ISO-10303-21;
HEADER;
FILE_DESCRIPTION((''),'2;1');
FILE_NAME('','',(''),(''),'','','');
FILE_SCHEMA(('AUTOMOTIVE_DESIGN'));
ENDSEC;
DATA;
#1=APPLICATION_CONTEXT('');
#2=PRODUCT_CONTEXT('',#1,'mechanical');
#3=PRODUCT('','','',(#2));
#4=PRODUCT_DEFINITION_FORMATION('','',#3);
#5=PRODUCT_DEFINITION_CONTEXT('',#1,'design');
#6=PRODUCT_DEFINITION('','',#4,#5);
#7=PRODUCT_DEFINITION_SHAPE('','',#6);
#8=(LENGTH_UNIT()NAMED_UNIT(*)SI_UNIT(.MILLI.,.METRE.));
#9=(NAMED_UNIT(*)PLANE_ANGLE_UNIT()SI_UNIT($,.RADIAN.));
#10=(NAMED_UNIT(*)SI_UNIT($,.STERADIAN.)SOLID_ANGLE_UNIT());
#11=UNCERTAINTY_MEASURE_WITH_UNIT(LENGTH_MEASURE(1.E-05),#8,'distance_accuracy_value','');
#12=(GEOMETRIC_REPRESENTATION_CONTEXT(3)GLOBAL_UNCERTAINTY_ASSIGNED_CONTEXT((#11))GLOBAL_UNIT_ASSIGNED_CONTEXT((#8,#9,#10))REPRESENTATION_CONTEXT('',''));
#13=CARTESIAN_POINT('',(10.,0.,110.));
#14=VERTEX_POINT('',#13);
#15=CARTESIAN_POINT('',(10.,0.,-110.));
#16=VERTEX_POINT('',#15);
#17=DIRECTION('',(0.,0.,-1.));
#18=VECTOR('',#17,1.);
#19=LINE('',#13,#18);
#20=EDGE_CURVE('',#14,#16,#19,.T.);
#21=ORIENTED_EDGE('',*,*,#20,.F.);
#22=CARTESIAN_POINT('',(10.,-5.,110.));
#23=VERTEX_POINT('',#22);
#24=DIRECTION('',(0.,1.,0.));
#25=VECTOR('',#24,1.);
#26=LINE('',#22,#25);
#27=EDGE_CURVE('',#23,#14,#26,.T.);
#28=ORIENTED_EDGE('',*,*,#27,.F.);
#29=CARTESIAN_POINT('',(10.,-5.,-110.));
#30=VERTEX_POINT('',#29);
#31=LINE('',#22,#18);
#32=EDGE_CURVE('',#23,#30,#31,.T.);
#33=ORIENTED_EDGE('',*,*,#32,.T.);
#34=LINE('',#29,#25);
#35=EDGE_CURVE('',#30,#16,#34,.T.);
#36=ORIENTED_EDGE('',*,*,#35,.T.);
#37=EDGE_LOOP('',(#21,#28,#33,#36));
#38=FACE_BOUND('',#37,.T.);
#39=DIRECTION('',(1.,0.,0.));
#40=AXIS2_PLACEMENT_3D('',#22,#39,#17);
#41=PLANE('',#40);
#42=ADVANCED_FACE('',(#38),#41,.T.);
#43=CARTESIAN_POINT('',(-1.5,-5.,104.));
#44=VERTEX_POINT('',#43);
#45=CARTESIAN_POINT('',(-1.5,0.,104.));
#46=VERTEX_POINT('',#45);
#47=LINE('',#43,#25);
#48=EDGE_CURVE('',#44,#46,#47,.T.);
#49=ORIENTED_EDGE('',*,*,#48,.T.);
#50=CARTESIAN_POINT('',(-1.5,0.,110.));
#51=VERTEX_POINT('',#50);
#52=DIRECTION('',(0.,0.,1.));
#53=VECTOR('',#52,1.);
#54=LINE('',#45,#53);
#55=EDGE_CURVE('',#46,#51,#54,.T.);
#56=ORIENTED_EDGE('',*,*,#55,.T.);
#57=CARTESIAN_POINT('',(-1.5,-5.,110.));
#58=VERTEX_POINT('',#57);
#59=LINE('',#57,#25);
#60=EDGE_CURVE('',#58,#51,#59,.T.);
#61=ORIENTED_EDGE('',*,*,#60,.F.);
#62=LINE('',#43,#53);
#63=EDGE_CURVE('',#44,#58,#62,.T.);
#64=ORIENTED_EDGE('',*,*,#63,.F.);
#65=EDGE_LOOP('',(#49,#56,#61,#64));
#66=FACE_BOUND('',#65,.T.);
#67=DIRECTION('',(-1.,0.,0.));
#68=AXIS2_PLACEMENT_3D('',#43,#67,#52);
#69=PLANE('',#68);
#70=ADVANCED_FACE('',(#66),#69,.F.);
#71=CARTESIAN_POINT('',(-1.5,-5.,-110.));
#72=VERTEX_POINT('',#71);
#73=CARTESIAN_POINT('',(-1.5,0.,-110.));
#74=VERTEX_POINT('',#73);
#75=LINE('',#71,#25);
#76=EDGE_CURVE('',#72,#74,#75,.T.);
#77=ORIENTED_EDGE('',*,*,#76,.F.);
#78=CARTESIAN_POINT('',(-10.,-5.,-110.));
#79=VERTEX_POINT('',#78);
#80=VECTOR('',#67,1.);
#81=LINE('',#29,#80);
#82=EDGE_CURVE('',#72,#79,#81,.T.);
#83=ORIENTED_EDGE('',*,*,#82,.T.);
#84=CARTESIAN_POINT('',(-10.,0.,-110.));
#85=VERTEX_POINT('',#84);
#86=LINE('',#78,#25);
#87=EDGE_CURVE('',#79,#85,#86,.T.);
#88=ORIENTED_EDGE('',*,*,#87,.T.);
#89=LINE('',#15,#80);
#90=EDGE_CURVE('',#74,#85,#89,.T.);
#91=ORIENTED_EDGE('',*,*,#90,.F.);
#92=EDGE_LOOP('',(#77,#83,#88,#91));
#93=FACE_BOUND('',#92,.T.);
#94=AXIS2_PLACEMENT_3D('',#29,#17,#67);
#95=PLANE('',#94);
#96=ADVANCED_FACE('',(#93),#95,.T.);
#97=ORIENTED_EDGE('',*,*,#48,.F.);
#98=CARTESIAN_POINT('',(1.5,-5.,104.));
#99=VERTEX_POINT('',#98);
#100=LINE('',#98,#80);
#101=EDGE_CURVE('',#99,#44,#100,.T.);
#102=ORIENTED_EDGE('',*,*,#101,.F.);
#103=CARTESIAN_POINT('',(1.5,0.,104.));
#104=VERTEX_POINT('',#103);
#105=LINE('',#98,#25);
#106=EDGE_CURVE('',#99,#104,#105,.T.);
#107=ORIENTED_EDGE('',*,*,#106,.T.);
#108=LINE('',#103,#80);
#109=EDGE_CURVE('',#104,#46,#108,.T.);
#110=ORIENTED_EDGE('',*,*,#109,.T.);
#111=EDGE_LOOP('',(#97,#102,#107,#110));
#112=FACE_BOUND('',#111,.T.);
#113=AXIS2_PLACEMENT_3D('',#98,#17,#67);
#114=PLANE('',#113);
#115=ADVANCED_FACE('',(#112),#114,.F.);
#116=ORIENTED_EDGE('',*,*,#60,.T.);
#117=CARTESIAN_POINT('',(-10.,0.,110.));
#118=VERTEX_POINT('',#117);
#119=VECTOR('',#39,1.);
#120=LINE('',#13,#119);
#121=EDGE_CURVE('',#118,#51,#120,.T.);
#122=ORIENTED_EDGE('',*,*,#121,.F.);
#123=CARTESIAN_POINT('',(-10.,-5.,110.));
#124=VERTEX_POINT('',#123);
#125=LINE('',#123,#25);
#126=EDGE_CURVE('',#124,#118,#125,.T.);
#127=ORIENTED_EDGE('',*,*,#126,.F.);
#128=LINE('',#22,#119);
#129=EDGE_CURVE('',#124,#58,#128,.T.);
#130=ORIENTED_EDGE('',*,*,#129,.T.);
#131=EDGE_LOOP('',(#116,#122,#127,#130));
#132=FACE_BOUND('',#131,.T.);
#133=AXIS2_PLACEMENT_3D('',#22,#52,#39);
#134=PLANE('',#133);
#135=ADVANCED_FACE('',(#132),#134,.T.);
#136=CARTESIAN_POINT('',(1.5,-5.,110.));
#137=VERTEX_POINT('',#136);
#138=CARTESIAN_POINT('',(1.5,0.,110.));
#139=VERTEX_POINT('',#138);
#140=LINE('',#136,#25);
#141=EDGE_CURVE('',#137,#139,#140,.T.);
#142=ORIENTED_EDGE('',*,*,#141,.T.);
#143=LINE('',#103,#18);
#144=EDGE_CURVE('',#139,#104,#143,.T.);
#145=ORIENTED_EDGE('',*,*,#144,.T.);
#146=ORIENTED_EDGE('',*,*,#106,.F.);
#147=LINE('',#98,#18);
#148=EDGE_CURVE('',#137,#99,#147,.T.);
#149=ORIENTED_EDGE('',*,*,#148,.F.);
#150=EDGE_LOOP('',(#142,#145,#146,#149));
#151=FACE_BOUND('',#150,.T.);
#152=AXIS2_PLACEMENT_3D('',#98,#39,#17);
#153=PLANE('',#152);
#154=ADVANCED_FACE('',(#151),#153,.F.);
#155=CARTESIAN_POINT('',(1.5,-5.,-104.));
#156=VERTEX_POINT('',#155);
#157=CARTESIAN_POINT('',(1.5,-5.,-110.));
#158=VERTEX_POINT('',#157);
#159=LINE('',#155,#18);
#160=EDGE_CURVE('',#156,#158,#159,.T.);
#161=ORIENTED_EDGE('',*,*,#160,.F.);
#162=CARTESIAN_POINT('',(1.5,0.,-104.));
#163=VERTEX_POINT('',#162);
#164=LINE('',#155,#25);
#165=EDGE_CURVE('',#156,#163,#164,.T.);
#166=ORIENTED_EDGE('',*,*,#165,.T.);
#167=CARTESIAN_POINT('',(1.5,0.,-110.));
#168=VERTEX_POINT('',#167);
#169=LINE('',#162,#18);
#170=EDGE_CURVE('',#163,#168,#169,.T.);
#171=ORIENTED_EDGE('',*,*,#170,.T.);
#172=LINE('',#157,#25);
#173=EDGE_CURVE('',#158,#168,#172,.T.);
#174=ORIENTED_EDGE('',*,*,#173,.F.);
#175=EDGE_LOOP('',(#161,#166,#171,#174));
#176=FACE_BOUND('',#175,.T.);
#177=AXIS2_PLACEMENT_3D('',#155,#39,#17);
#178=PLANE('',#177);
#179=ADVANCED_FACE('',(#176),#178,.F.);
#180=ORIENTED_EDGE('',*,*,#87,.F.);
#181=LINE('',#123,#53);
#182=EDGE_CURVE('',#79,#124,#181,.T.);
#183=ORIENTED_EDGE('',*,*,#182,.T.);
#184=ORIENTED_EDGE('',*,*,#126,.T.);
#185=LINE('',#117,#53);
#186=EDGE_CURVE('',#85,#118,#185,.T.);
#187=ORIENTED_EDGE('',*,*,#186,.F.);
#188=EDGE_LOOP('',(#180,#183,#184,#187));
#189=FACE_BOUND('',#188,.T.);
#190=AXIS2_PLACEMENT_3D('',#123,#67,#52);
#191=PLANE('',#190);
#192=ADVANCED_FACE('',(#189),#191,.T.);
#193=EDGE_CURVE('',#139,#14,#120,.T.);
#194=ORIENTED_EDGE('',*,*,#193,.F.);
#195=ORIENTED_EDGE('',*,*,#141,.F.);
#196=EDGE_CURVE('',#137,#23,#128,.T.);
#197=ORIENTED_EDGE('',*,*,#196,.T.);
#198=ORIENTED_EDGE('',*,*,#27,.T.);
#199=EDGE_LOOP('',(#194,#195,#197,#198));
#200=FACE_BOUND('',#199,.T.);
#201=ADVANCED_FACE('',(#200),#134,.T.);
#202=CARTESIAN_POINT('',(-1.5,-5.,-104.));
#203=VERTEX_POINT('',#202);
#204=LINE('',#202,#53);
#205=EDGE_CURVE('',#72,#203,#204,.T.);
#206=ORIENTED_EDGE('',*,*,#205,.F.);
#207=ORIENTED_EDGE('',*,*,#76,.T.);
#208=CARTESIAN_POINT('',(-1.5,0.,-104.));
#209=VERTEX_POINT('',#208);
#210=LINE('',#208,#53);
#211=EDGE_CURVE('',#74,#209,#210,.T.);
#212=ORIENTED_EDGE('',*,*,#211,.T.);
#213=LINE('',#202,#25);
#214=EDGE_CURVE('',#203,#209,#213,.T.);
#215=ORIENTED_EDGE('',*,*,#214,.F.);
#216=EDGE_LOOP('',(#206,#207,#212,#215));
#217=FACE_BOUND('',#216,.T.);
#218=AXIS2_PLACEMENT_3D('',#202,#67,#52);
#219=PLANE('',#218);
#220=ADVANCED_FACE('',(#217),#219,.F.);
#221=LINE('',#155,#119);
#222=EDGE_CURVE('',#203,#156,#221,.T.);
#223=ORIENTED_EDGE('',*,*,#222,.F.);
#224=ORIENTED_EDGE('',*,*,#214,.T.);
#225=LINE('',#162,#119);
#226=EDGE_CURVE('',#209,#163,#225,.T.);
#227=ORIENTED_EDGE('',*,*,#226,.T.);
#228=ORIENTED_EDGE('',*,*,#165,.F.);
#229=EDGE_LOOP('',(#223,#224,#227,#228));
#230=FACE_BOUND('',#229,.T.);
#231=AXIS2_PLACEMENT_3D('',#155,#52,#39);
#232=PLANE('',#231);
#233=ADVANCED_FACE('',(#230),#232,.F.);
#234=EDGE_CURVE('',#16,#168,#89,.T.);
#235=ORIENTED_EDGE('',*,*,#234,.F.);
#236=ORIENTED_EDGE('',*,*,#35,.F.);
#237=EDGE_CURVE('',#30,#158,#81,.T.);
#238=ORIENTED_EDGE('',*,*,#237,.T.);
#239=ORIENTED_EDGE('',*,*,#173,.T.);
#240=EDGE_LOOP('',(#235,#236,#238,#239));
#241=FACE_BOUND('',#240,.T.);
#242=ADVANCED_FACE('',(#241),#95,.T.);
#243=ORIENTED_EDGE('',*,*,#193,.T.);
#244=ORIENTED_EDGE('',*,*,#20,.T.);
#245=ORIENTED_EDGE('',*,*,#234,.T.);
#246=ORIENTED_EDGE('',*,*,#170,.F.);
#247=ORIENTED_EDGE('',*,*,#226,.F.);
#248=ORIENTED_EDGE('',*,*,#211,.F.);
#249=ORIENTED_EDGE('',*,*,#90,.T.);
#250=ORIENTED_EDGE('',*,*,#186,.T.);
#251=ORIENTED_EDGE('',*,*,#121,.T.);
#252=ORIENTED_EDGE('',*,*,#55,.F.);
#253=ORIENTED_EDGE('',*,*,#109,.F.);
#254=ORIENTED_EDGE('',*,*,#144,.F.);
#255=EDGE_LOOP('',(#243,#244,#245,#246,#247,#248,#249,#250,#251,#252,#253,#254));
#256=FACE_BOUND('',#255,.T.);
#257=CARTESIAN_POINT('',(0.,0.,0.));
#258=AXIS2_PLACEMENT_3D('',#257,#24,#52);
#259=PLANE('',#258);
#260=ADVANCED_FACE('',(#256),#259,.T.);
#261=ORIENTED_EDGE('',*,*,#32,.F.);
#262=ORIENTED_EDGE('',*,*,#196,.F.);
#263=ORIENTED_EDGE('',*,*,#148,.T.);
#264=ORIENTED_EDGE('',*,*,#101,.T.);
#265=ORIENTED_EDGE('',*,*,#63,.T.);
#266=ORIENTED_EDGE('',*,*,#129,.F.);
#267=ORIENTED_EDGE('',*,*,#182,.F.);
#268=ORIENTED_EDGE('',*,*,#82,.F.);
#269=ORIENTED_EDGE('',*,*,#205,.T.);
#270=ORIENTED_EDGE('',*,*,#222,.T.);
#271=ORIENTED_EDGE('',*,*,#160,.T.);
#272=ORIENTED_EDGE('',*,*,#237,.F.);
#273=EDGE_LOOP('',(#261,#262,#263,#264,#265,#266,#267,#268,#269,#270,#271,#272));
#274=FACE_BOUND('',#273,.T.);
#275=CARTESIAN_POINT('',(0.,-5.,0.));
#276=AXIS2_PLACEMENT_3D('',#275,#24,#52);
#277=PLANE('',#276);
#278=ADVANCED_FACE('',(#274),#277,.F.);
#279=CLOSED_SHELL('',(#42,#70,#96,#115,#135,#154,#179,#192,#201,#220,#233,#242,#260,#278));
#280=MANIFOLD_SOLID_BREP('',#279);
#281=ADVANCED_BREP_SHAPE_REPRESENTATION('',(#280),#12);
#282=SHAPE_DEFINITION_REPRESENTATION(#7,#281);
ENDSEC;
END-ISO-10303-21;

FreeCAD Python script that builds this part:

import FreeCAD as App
import Part
import Sketcher

doc = App.newDocument("Part")
body = doc.addObject("PartDesign::Body", "Body")

sketch1 = body.newObject("Sketcher::SketchObject", "Sketch")
sketch1.AttachmentSupport = (doc.getObject("XZ_Plane"), [""])
sketch1.MapMode = "FlatFace"
sketch1.addGeometry([
    Part.LineSegment(App.Vector(-10, -110, 0), App.Vector(-10, 110, 0)),
    Part.LineSegment(App.Vector(-10, 110, 0), App.Vector(10, 110, 0)),
    Part.LineSegment(App.Vector(10, 110, 0), App.Vector(10, -110, 0)),
    Part.LineSegment(App.Vector(10, -110, 0), App.Vector(-10, -110, 0)),
], False)
sketch1.addConstraint([
    Sketcher.Constraint("Coincident", 0, 2, 1, 1),
    Sketcher.Constraint("Coincident", 1, 2, 2, 1),
    Sketcher.Constraint("Coincident", 2, 2, 3, 1),
    Sketcher.Constraint("Coincident", 3, 2, 0, 1),
    Sketcher.Constraint("Vertical", 0),
    Sketcher.Constraint("Horizontal", 1),
    Sketcher.Constraint("Vertical", 2),
    Sketcher.Constraint("Horizontal", 3),
    Sketcher.Constraint("Symmetric", 0, 2, 2, 2, -1, 1),
    Sketcher.Constraint("DistanceX", 1, 1, 1, 2, 20.0),
    Sketcher.Constraint("DistanceY", 0, 1, 0, 2, 220.0),
])
pad1 = body.newObject("PartDesign::Pad", "Pad")
pad1.Profile = sketch1
pad1.Length = 5

sketch2 = body.newObject("Sketcher::SketchObject", "Sketch001")
sketch2.AttachmentSupport = (doc.getObject("XZ_Plane"), [""])
sketch2.MapMode = "FlatFace"
sketch2.addGeometry([
    Part.LineSegment(App.Vector(-1.5, 104, 0), App.Vector(-1.5, 110, 0)),
    Part.LineSegment(App.Vector(-1.5, 110, 0), App.Vector(1.5, 110, 0)),
    Part.LineSegment(App.Vector(1.5, 110, 0), App.Vector(1.5, 104, 0)),
    Part.LineSegment(App.Vector(1.5, 104, 0), App.Vector(-1.5, 104, 0)),
    Part.LineSegment(App.Vector(-1.5, -110, 0), App.Vector(-1.5, -104, 0)),
    Part.LineSegment(App.Vector(-1.5, -104, 0), App.Vector(1.5, -104, 0)),
    Part.LineSegment(App.Vector(1.5, -104, 0), App.Vector(1.5, -110, 0)),
    Part.LineSegment(App.Vector(1.5, -110, 0), App.Vector(-1.5, -110, 0)),
], False)
sketch2.addConstraint([
    Sketcher.Constraint("Coincident", 0, 2, 1, 1),
    Sketcher.Constraint("Coincident", 1, 2, 2, 1),
    Sketcher.Constraint("Coincident", 2, 2, 3, 1),
    Sketcher.Constraint("Coincident", 3, 2, 0, 1),
    Sketcher.Constraint("Coincident", 4, 2, 5, 1),
    Sketcher.Constraint("Coincident", 5, 2, 6, 1),
    Sketcher.Constraint("Coincident", 6, 2, 7, 1),
    Sketcher.Constraint("Coincident", 7, 2, 4, 1),
    Sketcher.Constraint("Vertical", 0),
    Sketcher.Constraint("Horizontal", 1),
    Sketcher.Constraint("Vertical", 2),
    Sketcher.Constraint("Horizontal", 3),
    Sketcher.Constraint("Vertical", 4),
    Sketcher.Constraint("Horizontal", 5),
    Sketcher.Constraint("Vertical", 6),
    Sketcher.Constraint("Horizontal", 7),
    Sketcher.Constraint("Symmetric", 2, 2, 4, 2, -1, 1),
    Sketcher.Constraint("Symmetric", 0, 2, 6, 2, -1, 1),
    Sketcher.Constraint("Vertical", 3, 2, 4, 2),
    Sketcher.Constraint("DistanceX", 1, 1, 1, 2, 3.0),
    Sketcher.Constraint("DistanceY", 0, 1, 0, 2, 6.0),
    Sketcher.Constraint("DistanceY", -1, 1, 0, 2, 110.0),
])
pocket1 = body.newObject("PartDesign::Pocket", "Pocket")
pocket1.Profile = sketch2
pocket1.Type = "ThroughAll"
pocket1.Reversed = True

doc.recompute()
